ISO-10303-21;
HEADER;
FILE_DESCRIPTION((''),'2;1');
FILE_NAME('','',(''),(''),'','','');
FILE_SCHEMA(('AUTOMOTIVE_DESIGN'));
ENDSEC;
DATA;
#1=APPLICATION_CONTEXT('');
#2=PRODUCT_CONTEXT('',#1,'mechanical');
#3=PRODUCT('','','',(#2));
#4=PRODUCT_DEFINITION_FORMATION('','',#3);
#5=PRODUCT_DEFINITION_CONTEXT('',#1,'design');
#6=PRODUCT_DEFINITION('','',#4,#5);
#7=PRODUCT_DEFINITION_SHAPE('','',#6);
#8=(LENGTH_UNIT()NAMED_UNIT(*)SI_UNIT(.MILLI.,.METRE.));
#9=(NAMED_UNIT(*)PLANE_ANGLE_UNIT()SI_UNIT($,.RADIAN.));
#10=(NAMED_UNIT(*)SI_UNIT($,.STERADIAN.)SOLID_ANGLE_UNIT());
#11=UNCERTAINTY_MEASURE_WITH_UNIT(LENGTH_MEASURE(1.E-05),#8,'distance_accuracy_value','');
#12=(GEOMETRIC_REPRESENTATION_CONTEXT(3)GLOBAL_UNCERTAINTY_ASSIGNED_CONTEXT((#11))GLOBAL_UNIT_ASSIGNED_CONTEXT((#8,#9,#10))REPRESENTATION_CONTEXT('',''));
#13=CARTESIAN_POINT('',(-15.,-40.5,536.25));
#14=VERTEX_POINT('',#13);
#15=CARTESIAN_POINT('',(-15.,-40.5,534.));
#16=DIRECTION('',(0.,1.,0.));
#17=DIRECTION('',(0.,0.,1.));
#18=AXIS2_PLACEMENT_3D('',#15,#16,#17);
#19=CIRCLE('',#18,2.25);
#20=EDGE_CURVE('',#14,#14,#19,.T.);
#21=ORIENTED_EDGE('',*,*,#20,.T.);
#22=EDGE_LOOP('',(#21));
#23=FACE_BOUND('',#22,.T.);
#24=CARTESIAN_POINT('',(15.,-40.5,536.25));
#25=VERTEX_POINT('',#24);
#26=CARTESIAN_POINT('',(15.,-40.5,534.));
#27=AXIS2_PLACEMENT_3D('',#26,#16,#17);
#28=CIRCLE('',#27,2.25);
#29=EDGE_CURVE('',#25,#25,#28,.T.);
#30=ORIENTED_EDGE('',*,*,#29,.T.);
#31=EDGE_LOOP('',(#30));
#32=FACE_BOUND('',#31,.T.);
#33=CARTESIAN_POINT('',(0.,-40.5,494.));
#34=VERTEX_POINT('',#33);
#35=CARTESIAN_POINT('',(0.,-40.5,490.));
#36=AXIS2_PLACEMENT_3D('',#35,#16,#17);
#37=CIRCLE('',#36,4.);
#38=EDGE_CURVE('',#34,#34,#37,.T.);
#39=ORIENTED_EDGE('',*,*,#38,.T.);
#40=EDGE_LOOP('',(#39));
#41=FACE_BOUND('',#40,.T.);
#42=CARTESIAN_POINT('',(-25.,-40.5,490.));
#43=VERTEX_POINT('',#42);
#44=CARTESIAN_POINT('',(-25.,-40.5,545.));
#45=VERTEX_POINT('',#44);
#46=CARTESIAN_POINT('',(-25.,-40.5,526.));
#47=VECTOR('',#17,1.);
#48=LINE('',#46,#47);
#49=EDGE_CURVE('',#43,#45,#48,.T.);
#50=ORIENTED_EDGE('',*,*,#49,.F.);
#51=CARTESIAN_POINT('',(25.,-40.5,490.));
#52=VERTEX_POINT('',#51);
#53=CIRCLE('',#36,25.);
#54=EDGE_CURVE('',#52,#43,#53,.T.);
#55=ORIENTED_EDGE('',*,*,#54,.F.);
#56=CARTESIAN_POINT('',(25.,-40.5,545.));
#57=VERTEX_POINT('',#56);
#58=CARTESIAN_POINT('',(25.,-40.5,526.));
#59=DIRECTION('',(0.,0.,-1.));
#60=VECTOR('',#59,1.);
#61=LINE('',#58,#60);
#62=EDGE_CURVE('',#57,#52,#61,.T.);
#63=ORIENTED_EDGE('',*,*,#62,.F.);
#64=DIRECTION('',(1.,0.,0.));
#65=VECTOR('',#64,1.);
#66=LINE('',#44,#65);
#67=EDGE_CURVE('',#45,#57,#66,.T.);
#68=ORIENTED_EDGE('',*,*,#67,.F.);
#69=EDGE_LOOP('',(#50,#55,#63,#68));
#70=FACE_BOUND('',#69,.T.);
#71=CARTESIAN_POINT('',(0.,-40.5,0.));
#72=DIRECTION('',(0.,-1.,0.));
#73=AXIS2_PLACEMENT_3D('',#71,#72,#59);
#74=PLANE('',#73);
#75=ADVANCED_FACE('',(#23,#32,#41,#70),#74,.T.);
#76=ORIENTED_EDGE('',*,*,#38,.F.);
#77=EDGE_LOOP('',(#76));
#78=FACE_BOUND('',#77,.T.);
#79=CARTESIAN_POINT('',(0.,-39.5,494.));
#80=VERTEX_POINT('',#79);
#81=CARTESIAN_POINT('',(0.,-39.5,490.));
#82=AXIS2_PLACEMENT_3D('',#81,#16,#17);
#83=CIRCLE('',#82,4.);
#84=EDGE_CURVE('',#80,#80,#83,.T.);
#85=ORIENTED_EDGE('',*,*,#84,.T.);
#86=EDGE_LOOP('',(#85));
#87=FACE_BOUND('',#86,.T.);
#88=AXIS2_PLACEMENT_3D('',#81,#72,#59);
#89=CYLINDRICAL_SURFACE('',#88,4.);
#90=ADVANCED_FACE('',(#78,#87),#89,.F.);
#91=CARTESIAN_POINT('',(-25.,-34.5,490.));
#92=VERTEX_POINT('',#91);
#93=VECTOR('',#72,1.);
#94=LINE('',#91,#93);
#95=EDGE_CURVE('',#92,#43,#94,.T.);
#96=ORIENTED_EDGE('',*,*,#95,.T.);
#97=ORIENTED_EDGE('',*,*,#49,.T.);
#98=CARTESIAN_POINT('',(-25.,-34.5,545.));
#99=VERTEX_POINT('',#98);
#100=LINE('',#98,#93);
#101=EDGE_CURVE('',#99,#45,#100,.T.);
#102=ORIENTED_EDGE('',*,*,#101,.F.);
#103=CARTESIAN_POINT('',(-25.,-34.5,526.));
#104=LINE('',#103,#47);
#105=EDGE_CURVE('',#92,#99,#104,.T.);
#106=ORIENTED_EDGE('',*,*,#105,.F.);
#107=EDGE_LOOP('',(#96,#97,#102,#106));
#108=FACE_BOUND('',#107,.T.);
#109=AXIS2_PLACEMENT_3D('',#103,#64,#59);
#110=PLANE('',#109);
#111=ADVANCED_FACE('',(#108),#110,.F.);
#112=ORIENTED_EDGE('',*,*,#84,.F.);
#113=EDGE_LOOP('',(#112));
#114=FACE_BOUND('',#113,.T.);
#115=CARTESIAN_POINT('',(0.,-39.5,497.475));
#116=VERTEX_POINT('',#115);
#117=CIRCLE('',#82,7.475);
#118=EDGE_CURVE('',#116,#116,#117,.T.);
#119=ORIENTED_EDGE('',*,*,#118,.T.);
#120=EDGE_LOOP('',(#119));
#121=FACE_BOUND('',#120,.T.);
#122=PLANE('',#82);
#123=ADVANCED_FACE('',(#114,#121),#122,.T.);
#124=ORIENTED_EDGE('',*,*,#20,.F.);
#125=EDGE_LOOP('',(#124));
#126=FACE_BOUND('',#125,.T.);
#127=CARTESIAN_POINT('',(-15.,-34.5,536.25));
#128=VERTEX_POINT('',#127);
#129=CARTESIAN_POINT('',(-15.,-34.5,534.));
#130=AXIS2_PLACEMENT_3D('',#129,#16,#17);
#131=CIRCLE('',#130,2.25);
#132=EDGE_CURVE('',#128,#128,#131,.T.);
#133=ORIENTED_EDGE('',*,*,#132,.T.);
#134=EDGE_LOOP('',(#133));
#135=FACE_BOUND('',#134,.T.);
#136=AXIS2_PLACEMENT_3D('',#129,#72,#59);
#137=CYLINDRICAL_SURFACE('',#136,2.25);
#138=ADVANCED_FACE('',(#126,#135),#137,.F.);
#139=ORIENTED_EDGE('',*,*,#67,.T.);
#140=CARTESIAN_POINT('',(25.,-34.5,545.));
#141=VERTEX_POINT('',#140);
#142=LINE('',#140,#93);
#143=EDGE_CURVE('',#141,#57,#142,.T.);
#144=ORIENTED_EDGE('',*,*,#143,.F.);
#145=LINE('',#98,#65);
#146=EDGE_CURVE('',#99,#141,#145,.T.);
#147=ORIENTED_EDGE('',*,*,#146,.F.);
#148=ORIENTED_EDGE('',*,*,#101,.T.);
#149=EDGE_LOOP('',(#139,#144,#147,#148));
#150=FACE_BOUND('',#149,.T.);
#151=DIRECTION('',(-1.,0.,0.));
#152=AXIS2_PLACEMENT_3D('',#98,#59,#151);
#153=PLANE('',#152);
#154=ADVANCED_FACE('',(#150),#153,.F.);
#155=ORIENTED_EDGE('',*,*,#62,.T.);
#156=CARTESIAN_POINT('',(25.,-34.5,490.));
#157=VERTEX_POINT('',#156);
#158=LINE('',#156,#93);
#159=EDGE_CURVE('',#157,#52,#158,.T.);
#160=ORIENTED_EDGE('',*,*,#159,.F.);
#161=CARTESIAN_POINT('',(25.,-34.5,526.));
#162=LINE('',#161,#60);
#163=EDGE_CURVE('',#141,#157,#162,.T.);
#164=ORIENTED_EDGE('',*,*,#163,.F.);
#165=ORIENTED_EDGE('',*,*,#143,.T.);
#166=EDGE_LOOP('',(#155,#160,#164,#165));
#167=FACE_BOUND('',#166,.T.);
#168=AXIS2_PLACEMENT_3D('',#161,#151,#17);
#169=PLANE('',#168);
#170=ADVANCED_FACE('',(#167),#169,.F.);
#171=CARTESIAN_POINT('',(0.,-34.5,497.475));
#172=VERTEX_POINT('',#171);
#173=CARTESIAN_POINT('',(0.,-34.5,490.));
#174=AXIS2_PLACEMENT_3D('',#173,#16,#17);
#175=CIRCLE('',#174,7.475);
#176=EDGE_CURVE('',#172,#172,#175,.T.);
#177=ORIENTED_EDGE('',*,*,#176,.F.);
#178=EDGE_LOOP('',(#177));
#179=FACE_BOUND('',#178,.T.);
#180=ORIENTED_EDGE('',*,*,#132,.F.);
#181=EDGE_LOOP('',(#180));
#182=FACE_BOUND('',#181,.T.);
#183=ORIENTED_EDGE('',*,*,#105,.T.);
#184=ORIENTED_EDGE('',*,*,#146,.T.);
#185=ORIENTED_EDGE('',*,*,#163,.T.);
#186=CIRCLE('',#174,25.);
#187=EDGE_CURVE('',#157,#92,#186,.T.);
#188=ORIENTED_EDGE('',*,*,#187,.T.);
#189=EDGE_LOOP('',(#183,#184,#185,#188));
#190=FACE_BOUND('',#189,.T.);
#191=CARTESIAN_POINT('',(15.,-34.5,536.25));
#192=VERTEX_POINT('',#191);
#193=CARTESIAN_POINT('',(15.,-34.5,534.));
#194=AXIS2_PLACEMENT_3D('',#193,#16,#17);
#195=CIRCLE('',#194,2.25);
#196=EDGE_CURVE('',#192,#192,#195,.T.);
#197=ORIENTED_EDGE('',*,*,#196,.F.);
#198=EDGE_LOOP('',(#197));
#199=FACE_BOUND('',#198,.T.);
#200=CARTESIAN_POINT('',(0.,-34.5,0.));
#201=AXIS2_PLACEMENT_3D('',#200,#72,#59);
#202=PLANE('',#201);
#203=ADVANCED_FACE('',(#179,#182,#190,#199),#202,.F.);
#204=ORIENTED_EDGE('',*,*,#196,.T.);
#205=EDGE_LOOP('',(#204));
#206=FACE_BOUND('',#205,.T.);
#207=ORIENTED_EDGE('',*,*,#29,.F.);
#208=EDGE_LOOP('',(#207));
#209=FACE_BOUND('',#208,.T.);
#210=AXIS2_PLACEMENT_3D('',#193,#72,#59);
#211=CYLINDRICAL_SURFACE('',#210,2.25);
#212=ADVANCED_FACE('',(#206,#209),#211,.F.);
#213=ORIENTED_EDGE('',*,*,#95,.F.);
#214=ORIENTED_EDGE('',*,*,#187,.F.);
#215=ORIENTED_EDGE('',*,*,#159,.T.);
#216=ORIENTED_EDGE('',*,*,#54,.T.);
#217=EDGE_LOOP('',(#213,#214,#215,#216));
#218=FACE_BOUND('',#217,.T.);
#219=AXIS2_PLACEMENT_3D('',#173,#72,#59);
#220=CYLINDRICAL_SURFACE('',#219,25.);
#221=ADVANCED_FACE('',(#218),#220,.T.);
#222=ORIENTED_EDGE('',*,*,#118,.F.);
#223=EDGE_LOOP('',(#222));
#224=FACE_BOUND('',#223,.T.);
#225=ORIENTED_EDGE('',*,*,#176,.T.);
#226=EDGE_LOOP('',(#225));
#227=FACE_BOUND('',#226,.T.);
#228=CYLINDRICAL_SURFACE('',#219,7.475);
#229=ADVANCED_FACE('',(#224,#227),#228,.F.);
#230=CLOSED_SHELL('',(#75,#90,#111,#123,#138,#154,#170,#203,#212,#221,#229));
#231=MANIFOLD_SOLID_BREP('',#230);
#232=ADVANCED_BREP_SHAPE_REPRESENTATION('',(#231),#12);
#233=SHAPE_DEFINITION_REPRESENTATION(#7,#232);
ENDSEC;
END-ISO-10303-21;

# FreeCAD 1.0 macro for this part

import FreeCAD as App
import Part
import Sketcher
Q = App.Units.Quantity


def add_polygon(sketch, points):
    """Adds a closed chain of lines whose ends are joined by coincident constraints."""
    first, n = sketch.GeometryCount, len(points)
    for a, b in zip(points, points[1:] + points[:1]):
        sketch.addGeometry(Part.LineSegment(App.Vector(*a, 0), App.Vector(*b, 0)), False)
    for i in range(n):
        sketch.addConstraint(Sketcher.Constraint("Coincident", first + i, 2, first + (i + 1) % n, 1))

doc = App.newDocument("Part")
body = doc.addObject("PartDesign::Body", "Body")

sketch1 = body.newObject("Sketcher::SketchObject", "Sketch")
sketch1.AttachmentSupport = (doc.getObject("XZ_Plane"), [""])
sketch1.MapMode = "FlatFace"
sketch1.AttachmentOffset = App.Placement(App.Vector(0, 0, 40.5), App.Rotation())
add_polygon(sketch1, [(-25, 490), (-25, 526), (25, 526), (25, 490)])
sketch1.addConstraint([
    Sketcher.Constraint("Vertical", 0),
    Sketcher.Constraint("Horizontal", 1),
    Sketcher.Constraint("Vertical", 2),
    Sketcher.Constraint("Horizontal", 3),
    Sketcher.Constraint("DistanceX", 1, 1, 1, 2, Q("50 mm")),
    Sketcher.Constraint("DistanceY", 0, 1, 0, 2, Q("36 mm")),
    Sketcher.Constraint("DistanceX", 0, 2, -1, 1, Q("25 mm")),
    Sketcher.Constraint("DistanceY", -1, 1, 0, 2, Q("526 mm")),
])
pad1 = body.newObject("PartDesign::Pad", "Pad")
pad1.Profile = sketch1
pad1.Length = 6
pad1.Reversed = True

sketch2 = body.newObject("Sketcher::SketchObject", "Sketch001")
sketch2.AttachmentSupport = (doc.getObject("XZ_Plane"), [""])
sketch2.MapMode = "FlatFace"
sketch2.AttachmentOffset = App.Placement(App.Vector(0, 0, 40.5), App.Rotation())
sketch2.addGeometry(Part.Circle(App.Vector(0, 490, 0), App.Vector(0, 0, 1), 25), False)
sketch2.addConstraint([
    Sketcher.Constraint("PointOnObject", 0, 3, -2),
    Sketcher.Constraint("Diameter", 0, Q("50 mm")),
    Sketcher.Constraint("DistanceY", -1, 1, 0, 3, Q("490 mm")),
])
pad2 = body.newObject("PartDesign::Pad", "Pad001")
pad2.Profile = sketch2
pad2.Length = 6
pad2.Reversed = True

sketch3 = body.newObject("Sketcher::SketchObject", "Sketch002")
sketch3.AttachmentSupport = (doc.getObject("XZ_Plane"), [""])
sketch3.MapMode = "FlatFace"
sketch3.AttachmentOffset = App.Placement(App.Vector(0, 0, 39.5), App.Rotation())
sketch3.addGeometry(Part.Circle(App.Vector(0, 490, 0), App.Vector(0, 0, 1), 7), False)
sketch3.addConstraint([
    Sketcher.Constraint("PointOnObject", 0, 3, -2),
    Sketcher.Constraint("Diameter", 0, Q("14.95 mm")),
    Sketcher.Constraint("DistanceY", -1, 1, 0, 3, Q("490 mm")),
])
pocket1 = body.newObject("PartDesign::Pocket", "Pocket")
pocket1.Profile = sketch3
pocket1.Length = 5

sketch4 = body.newObject("Sketcher::SketchObject", "Sketch003")
sketch4.AttachmentSupport = (doc.getObject("XZ_Plane"), [""])
sketch4.MapMode = "FlatFace"
sketch4.AttachmentOffset = App.Placement(App.Vector(0, 0, 40.5), App.Rotation())
sketch4.addGeometry(Part.Circle(App.Vector(0, 490, 0), App.Vector(0, 0, 1), 4), False)
sketch4.addConstraint([
    Sketcher.Constraint("PointOnObject", 0, 3, -2),
    Sketcher.Constraint("Diameter", 0, Q("8 mm")),
    Sketcher.Constraint("DistanceY", -1, 1, 0, 3, Q("490 mm")),
])
pocket2 = body.newObject("PartDesign::Pocket", "Pocket001")
pocket2.Profile = sketch4
pocket2.Length = 1

sketch5 = body.newObject("Sketcher::SketchObject", "Sketch004")
sketch5.AttachmentSupport = (doc.getObject("XZ_Plane"), [""])
sketch5.MapMode = "FlatFace"
sketch5.AttachmentOffset = App.Placement(App.Vector(0, 0, 40.5), App.Rotation())
add_polygon(sketch5, [(-25, 526), (-25, 545), (25, 545), (25, 526)])
sketch5.addConstraint([
    Sketcher.Constraint("Vertical", 0),
    Sketcher.Constraint("Horizontal", 1),
    Sketcher.Constraint("Vertical", 2),
    Sketcher.Constraint("Horizontal", 3),
    Sketcher.Constraint("DistanceX", 1, 1, 1, 2, Q("50 mm")),
    Sketcher.Constraint("DistanceY", 0, 1, 0, 2, Q("19 mm")),
    Sketcher.Constraint("DistanceX", 0, 2, -1, 1, Q("25 mm")),
    Sketcher.Constraint("DistanceY", -1, 1, 0, 2, Q("545 mm")),
])
pad3 = body.newObject("PartDesign::Pad", "Pad002")
pad3.Profile = sketch5
pad3.Length = 6
pad3.Reversed = True

sketch6 = body.newObject("Sketcher::SketchObject", "Sketch005")
sketch6.AttachmentSupport = (doc.getObject("XZ_Plane"), [""])
sketch6.MapMode = "FlatFace"
sketch6.AttachmentOffset = App.Placement(App.Vector(0, 0, 40.5), App.Rotation())
sketch6.addGeometry([
    Part.Circle(App.Vector(-15, 534, 0), App.Vector(0, 0, 1), 2.2),
    Part.Circle(App.Vector(15, 534, 0), App.Vector(0, 0, 1), 2.2),
], False)
sketch6.addConstraint([
    Sketcher.Constraint("Equal", 0, 1),
    Sketcher.Constraint("Symmetric", 0, 3, 1, 3, -2),
    Sketcher.Constraint("Diameter", 0, Q("4.5 mm")),
    Sketcher.Constraint("DistanceX", 0, 3, -1, 1, Q("15 mm")),
    Sketcher.Constraint("DistanceY", -1, 1, 0, 3, Q("534 mm")),
])
pocket3 = body.newObject("PartDesign::Pocket", "Pocket002")
pocket3.Profile = sketch6
pocket3.Length = 6

doc.recompute()
